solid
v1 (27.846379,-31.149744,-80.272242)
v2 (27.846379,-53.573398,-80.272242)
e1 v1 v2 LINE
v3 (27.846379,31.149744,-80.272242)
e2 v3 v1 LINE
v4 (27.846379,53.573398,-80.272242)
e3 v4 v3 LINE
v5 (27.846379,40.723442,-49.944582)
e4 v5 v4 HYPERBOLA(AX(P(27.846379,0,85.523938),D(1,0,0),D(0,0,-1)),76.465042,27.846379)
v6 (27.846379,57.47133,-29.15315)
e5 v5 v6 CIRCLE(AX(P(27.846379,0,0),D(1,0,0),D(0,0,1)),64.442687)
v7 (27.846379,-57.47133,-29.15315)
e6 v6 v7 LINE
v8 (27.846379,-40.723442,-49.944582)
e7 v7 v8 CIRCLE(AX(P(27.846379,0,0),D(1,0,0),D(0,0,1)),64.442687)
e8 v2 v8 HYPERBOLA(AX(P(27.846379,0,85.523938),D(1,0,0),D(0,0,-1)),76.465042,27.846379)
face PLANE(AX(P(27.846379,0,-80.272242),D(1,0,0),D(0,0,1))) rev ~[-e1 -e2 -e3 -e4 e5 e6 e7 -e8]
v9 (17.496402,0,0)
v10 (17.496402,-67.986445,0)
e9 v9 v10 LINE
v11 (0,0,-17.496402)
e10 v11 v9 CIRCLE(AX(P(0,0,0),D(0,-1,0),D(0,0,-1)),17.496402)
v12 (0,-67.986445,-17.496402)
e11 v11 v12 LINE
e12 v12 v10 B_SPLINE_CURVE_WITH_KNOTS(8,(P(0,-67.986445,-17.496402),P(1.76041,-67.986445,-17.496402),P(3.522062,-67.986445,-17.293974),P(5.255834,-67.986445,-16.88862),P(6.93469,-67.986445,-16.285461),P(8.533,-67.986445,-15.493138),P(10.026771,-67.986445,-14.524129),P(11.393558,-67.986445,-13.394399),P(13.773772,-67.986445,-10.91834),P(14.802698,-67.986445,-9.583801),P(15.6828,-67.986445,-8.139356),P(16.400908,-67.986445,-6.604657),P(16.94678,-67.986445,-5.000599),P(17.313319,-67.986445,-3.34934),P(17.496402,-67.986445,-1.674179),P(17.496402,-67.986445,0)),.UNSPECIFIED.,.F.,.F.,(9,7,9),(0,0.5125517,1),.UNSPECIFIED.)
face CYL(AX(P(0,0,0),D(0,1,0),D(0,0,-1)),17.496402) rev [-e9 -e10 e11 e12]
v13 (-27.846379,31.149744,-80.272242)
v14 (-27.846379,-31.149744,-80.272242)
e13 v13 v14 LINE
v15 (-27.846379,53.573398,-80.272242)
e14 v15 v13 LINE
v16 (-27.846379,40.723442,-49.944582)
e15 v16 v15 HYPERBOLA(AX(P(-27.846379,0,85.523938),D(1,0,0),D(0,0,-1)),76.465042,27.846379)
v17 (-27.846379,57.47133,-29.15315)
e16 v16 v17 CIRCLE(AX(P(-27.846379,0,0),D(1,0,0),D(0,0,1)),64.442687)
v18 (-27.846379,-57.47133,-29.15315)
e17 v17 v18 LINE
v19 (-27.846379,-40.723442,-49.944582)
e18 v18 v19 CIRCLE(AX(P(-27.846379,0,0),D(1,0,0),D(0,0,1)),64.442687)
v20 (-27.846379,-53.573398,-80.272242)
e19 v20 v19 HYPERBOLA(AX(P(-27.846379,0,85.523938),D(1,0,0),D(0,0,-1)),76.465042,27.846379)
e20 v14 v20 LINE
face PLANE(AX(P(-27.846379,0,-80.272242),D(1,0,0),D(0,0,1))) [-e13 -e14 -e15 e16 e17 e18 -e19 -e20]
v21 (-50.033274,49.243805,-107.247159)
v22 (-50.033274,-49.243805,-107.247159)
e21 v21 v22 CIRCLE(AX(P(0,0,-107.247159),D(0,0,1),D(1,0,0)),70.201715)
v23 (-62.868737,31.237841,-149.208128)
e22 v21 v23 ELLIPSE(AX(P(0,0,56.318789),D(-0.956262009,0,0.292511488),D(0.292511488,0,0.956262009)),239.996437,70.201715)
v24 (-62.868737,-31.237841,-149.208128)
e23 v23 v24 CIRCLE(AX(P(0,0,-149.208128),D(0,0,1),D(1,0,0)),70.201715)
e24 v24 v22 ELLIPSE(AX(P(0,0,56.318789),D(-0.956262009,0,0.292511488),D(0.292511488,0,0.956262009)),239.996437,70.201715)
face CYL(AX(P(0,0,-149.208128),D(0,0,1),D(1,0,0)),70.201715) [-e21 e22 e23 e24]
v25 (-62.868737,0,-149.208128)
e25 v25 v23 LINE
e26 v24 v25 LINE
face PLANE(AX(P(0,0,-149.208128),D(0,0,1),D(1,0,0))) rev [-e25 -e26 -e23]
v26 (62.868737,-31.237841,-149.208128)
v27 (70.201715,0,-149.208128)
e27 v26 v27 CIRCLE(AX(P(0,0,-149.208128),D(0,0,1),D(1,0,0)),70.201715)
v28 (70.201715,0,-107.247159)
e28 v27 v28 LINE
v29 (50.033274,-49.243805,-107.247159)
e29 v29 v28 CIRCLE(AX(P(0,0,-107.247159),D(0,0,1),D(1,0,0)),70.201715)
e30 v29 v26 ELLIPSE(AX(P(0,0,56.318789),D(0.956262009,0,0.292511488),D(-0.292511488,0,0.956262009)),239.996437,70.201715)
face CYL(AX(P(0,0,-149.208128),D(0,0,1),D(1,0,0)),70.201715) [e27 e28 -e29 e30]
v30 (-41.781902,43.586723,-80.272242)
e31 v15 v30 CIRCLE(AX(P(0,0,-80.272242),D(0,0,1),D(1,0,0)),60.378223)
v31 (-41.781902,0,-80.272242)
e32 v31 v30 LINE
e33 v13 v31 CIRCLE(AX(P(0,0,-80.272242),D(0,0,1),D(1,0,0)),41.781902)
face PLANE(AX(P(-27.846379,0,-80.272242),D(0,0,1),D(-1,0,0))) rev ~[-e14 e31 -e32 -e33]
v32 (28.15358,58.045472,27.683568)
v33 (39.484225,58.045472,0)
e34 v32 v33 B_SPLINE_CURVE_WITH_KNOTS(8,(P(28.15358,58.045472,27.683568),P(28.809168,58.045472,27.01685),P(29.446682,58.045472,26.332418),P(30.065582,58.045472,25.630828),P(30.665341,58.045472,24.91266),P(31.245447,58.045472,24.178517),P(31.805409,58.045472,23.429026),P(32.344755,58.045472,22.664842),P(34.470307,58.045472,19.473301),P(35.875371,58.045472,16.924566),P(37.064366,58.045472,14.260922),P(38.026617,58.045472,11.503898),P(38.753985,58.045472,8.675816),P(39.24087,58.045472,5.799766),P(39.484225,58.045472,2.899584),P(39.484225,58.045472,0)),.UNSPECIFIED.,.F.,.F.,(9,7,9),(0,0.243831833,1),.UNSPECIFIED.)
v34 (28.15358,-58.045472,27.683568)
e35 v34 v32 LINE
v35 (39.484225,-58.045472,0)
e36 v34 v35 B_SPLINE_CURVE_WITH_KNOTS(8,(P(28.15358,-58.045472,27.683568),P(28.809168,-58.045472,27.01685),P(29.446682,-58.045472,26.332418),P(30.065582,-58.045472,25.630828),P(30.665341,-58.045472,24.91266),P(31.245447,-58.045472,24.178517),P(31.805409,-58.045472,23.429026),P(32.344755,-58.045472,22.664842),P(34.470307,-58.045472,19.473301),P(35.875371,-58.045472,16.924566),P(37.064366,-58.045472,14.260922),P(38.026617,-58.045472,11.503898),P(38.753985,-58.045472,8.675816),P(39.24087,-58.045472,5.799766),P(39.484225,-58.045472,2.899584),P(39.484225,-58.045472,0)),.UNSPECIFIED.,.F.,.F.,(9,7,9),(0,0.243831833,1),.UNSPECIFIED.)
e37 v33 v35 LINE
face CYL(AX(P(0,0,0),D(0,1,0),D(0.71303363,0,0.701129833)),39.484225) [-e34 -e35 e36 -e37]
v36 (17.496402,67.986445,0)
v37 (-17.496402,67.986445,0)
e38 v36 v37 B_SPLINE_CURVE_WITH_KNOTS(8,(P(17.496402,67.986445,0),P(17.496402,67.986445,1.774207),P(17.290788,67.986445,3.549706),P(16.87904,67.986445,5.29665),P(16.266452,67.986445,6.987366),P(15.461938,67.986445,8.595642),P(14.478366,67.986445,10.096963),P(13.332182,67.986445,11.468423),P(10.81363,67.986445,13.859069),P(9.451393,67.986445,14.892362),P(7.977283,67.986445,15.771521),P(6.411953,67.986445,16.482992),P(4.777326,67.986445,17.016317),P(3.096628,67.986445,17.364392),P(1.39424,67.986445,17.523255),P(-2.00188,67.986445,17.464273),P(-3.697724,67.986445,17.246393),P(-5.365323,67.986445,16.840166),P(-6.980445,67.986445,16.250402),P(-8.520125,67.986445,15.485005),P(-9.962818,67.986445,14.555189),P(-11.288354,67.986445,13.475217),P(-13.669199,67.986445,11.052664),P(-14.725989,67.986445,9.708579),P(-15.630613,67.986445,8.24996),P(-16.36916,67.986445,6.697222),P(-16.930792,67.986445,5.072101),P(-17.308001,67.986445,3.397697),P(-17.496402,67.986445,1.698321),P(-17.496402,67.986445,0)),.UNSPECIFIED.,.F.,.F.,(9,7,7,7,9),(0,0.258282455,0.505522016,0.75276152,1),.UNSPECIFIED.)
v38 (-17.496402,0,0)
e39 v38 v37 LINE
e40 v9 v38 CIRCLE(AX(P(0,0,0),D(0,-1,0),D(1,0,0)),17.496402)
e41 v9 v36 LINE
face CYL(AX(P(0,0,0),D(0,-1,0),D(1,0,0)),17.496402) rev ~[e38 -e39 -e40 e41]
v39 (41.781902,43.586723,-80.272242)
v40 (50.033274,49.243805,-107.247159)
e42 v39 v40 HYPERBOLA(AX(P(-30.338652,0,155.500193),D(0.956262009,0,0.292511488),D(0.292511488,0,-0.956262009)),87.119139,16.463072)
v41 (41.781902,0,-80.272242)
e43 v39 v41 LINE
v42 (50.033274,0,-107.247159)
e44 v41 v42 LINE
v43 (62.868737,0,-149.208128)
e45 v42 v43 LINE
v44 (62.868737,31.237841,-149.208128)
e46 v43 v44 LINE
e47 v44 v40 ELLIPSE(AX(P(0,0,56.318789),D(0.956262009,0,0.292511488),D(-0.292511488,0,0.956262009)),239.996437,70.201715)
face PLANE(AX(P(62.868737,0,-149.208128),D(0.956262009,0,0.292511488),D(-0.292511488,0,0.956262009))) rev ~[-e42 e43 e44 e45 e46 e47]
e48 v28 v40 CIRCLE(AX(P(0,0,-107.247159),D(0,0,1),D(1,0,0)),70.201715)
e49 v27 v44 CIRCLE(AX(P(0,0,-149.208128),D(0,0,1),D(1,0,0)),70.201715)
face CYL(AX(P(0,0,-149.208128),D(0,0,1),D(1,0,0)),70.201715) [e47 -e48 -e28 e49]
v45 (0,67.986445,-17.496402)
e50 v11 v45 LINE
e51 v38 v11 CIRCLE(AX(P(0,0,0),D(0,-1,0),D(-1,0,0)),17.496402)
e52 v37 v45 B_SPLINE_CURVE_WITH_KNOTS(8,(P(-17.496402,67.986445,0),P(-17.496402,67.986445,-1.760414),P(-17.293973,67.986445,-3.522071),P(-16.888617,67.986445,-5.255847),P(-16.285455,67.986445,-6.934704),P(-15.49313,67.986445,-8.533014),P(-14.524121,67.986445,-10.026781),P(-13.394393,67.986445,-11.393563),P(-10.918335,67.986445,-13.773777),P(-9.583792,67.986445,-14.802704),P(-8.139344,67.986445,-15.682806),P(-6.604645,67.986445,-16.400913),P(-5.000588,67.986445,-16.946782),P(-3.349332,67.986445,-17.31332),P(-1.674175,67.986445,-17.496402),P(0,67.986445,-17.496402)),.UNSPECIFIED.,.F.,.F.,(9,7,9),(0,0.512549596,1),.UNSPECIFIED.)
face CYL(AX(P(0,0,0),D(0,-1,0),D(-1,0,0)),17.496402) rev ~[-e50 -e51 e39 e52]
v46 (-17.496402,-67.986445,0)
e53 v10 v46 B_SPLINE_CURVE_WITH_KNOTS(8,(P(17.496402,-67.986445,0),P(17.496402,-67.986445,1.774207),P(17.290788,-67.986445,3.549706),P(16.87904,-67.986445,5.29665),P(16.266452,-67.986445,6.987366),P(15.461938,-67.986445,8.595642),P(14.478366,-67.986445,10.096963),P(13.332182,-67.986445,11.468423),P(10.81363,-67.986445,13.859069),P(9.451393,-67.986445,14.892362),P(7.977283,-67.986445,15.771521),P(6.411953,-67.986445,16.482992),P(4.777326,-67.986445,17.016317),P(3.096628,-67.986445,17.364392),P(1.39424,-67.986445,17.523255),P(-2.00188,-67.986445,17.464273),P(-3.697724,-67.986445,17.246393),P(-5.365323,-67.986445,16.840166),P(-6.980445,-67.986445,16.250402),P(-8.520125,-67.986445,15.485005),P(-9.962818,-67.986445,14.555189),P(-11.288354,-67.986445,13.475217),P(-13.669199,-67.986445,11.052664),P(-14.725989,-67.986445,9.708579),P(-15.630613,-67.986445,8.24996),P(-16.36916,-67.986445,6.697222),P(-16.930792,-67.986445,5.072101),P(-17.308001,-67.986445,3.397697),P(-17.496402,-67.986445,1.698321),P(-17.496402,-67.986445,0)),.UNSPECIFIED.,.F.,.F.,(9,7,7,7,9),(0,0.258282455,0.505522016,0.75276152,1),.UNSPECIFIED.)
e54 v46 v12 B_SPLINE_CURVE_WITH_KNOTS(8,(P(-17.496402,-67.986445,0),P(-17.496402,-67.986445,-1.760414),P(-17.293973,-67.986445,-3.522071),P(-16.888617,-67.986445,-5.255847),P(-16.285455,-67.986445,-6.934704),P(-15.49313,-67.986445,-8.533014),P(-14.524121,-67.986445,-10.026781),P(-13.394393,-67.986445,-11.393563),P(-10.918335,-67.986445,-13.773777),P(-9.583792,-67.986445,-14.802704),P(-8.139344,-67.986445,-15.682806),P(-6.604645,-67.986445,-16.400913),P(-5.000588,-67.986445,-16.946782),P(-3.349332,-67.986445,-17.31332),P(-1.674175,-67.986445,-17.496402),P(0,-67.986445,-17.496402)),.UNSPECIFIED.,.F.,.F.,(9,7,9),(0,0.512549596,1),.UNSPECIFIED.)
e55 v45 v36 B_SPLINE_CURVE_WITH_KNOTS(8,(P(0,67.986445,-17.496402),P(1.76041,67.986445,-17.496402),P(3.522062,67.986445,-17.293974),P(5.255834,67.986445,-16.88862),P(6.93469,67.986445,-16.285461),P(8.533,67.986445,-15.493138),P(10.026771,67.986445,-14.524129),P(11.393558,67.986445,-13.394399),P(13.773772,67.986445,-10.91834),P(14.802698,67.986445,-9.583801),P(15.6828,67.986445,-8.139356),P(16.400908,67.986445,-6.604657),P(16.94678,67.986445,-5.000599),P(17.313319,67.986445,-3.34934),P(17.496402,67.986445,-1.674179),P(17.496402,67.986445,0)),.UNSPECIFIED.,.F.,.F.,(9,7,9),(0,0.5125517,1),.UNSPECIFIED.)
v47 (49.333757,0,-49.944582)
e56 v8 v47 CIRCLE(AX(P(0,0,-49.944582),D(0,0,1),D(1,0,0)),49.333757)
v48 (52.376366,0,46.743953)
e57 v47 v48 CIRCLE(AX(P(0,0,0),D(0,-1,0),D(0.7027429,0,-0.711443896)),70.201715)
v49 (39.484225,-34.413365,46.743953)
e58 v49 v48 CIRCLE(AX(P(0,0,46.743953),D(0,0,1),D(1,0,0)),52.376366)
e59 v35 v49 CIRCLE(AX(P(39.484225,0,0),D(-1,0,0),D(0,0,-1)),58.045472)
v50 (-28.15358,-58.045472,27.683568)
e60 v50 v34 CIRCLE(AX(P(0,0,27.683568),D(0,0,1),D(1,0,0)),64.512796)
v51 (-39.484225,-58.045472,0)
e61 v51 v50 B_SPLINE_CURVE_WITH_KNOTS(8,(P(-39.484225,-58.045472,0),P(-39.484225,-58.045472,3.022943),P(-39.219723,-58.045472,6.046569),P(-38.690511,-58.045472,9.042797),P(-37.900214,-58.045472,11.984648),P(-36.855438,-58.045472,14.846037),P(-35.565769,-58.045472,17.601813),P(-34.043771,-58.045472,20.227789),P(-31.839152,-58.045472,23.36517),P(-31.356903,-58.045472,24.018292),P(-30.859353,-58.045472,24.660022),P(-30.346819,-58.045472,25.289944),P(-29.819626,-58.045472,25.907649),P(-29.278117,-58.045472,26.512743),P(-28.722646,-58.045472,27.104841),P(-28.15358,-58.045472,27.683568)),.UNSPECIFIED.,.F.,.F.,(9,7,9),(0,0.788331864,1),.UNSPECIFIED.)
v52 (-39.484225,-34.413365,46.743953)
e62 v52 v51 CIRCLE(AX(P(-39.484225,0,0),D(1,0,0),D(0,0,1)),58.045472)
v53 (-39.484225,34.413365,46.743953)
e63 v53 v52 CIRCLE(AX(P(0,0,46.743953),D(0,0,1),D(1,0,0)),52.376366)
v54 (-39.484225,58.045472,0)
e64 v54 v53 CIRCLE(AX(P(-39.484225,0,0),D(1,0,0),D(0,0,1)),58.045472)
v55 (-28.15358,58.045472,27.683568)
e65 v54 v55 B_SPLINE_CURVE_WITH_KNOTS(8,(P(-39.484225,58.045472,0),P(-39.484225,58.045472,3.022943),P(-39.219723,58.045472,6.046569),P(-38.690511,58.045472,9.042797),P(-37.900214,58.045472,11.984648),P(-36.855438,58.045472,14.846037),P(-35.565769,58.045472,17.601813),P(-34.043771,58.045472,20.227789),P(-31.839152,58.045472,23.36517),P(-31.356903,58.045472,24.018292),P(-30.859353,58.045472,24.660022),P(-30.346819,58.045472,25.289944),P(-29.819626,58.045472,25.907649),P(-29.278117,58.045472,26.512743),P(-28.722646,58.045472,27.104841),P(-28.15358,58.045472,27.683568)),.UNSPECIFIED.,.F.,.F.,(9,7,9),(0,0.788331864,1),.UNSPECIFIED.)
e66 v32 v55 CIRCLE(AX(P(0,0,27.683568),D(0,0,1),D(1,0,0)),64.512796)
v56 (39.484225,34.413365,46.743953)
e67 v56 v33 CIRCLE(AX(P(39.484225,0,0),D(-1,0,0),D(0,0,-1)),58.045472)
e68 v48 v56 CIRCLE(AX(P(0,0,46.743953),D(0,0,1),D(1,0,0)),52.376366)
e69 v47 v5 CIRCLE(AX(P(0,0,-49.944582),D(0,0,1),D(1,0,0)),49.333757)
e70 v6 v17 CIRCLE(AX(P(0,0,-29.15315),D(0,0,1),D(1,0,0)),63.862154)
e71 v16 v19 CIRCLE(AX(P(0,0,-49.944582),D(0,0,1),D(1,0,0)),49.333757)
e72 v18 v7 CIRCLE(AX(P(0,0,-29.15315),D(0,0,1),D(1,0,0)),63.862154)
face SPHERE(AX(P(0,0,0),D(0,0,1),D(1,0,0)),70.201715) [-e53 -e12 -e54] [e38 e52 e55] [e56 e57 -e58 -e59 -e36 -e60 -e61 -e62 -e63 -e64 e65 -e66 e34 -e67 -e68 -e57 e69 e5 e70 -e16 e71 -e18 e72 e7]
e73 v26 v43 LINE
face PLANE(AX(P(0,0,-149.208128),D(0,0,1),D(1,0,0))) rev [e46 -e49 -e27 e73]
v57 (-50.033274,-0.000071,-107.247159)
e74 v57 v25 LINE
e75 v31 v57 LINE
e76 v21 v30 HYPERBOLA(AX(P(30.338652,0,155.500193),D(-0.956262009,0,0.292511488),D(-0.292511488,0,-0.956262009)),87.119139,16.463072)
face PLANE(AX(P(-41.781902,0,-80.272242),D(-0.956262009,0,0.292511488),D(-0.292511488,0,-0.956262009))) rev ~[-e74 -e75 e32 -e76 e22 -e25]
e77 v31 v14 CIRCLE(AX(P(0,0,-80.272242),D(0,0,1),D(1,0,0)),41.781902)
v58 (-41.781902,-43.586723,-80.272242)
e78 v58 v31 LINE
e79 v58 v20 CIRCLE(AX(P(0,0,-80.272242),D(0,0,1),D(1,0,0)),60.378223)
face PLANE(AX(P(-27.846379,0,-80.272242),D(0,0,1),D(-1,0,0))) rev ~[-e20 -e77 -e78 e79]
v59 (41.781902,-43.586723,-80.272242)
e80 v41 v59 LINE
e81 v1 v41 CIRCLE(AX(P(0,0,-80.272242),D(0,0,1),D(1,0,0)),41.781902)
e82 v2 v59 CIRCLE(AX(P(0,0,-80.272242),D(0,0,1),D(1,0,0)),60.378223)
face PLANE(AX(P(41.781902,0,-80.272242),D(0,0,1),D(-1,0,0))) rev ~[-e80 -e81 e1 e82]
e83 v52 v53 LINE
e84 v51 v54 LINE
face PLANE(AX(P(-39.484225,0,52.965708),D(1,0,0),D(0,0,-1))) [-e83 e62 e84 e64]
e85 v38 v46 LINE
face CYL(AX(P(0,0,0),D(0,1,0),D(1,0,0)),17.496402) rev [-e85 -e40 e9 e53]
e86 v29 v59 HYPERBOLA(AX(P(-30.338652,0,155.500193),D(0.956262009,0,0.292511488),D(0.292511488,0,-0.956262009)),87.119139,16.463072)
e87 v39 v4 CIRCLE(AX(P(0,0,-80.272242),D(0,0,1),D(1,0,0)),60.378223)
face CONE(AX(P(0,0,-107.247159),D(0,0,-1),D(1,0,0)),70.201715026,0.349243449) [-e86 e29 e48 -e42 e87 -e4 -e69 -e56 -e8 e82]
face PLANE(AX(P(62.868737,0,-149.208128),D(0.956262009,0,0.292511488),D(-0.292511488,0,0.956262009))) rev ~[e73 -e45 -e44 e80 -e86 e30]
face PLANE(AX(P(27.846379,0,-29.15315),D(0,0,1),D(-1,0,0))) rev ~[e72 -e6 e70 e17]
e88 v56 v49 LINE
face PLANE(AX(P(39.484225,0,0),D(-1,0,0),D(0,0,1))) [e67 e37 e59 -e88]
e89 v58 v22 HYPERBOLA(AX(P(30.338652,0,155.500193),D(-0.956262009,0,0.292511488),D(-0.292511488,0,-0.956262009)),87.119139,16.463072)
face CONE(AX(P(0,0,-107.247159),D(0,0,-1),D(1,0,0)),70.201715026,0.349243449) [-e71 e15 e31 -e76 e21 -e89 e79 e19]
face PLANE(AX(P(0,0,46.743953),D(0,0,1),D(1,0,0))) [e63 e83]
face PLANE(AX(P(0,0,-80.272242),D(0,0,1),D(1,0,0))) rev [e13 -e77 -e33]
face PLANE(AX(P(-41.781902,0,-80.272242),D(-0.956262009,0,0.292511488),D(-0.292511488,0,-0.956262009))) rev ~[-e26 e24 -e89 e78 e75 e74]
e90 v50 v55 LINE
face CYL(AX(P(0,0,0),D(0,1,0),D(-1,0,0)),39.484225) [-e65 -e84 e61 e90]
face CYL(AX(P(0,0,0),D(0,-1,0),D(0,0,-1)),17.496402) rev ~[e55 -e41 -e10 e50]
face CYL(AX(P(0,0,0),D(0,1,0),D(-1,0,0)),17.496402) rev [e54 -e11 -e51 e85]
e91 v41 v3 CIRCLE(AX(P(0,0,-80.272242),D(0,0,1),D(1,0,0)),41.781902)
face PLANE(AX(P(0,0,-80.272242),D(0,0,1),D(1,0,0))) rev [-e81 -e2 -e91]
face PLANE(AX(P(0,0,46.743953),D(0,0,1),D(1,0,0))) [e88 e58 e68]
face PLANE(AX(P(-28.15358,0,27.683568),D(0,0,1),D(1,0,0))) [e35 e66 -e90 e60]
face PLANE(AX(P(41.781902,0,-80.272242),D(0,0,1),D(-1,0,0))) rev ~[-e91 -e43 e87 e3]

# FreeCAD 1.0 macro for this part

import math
import FreeCAD as App
import Part
import Sketcher

V = App.Vector
Q = App.Units.Quantity


def add_polygon(sketch, points):
    """Adds a closed chain of lines whose ends are joined by coincident constraints."""
    first, n = sketch.GeometryCount, len(points)
    for a, b in zip(points, points[1:] + points[:1]):
        sketch.addGeometry(Part.LineSegment(App.Vector(*a, 0), App.Vector(*b, 0)), False)
    for i in range(n):
        sketch.addConstraint(Sketcher.Constraint("Coincident", first + i, 2, first + (i + 1) % n, 1))

doc = App.newDocument("Part")
body = doc.addObject("PartDesign::Body", "Body")

sketch1 = doc.addObject("Sketcher::SketchObject", "Sketch")
body.addObject(sketch1)
sketch1.AttachmentSupport = (doc.XZ_Plane, [""])
sketch1.MapMode = "FlatFace"
sketch1.addGeometry([
    Part.ArcOfCircle(Part.Circle(V(0, 0, 0), V(0, 0, 1), 70.201715), math.radians(-45.352516), math.radians(41.747722)),
    Part.LineSegment(V(52.376366, 46.743953, 0), V(0, 46.743953, 0)),
    Part.LineSegment(V(0, 46.743953, 0), V(0, -80.272242, 0)),
    Part.LineSegment(V(0, -80.272242, 0), V(41.781902, -80.272242, 0)),
    Part.LineSegment(V(41.781902, -80.272242, 0), V(50.033274, -107.247159, 0)),
    Part.LineSegment(V(50.033274, -107.247159, 0), V(62.868737, -149.208128, 0)),
    Part.LineSegment(V(62.868737, -149.208128, 0), V(70.201715, -149.208128, 0)),
    Part.LineSegment(V(70.201715, -149.208128, 0), V(70.201715, -107.247159, 0)),
    Part.LineSegment(V(70.201715, -107.247159, 0), V(49.333757, -49.944582, 0)),
], False)
sketch1.addConstraint([
    Sketcher.Constraint("Coincident", 0, 2, 1, 1),
    Sketcher.Constraint("Coincident", 1, 2, 2, 1),
    Sketcher.Constraint("Coincident", 2, 2, 3, 1),
    Sketcher.Constraint("Coincident", 3, 2, 4, 1),
    Sketcher.Constraint("Coincident", 4, 2, 5, 1),
    Sketcher.Constraint("Coincident", 5, 2, 6, 1),
    Sketcher.Constraint("Coincident", 6, 2, 7, 1),
    Sketcher.Constraint("Coincident", 7, 2, 8, 1),
    Sketcher.Constraint("Coincident", 8, 2, 0, 1),
    Sketcher.Constraint("Horizontal", 1),
    Sketcher.Constraint("Vertical", 2),
    Sketcher.Constraint("Horizontal", 3),
    Sketcher.Constraint("Horizontal", 6),
    Sketcher.Constraint("Vertical", 7),
    Sketcher.Constraint("Coincident", 0, 3, -1, 1),
    Sketcher.Constraint("PointOnObject", 1, 2, -2),
    Sketcher.Constraint("Parallel", 4, 5),
    Sketcher.Constraint("Horizontal", 4, 2, 7, 2),
    Sketcher.Constraint("Radius", 0, Q("70.201715 mm")),
    Sketcher.Constraint("Distance", 5, Q("43.880201 mm")),
    Sketcher.Constraint("DistanceX", 6, 1, 6, 2, Q("7.332978 mm")),
    Sketcher.Constraint("DistanceY", 7, 1, 7, 2, Q("41.96097 mm")),
    Sketcher.Constraint("Distance", 4, Q("28.208709 mm")),
    Sketcher.Constraint("DistanceX", 1, 2, 1, 1, Q("52.376366 mm")),
    Sketcher.Constraint("DistanceX", 3, 1, 3, 2, Q("41.781902 mm")),
    Sketcher.Constraint("DistanceY", 2, 2, 2, 1, Q("127.016195 mm")),
    Sketcher.Constraint("DistanceY", 8, 2, -1, 1, Q("49.944582 mm")),
])
revolution = doc.addObject("PartDesign::Revolution", "Revolution")
body.addObject(revolution)
revolution.Profile = sketch1
revolution.ReferenceAxis = (sketch1, ["V_Axis"])
revolution.Angle = 360

sketch2 = doc.addObject("Sketcher::SketchObject", "Sketch001")
body.addObject(sketch2)
sketch2.AttachmentSupport = (doc.XZ_Plane, [""])
sketch2.MapMode = "FlatFace"
sketch2.addGeometry(Part.ArcOfCircle(Part.Circle(V(0, 0, 0), V(0, 0, 1), 39.484225), math.radians(0), math.radians(44.517721)), False)
sketch2.addGeometry(Part.LineSegment(V(39.484225, 0, 0), V(39.484225, 52.965708, 0)), False)
sketch2.addGeometry(Part.LineSegment(V(39.484225, 52.965708, 0), V(-39.484225, 52.965708, 0)), False)
sketch2.addGeometry(Part.LineSegment(V(-39.484225, 52.965708, 0), V(-39.484225, 0, 0)), False)
sketch2.addGeometry(Part.ArcOfCircle(Part.Circle(V(0, 0, 0), V(0, 0, 1), 39.484225), math.radians(135.482279), math.radians(180)), False)
sketch2.addGeometry(Part.LineSegment(V(-28.15358, 27.683568, 0), V(28.15358, 27.683568, 0)), False)
sketch2.addGeometry(Part.ArcOfCircle(Part.Circle(V(0, 0, 0), V(0, 0, 1), 17.496402), math.radians(0), math.radians(180)), False)
sketch2.addGeometry(Part.ArcOfCircle(Part.Circle(V(0, 0, 0), V(0, 0, 1), 17.496402), math.radians(180), math.radians(270)), False)
sketch2.addGeometry(Part.ArcOfCircle(Part.Circle(V(0, 0, 0), V(0, 0, 1), 17.496402), math.radians(-90), math.radians(0)), False)
add_polygon(sketch2, [(62.868737, -149.208128), (41.781902, -80.272242), (27.846379, -80.272242), (27.846379, -29.15315), (-27.846379, -29.15315), (-27.846379, -80.272242), (-41.781902, -80.272242), (-62.868737, -149.208128)])
sketch2.addConstraint([
    Sketcher.Constraint("Tangent", 0, 1, 1, 1),
    Sketcher.Constraint("Coincident", 1, 2, 2, 1),
    Sketcher.Constraint("Coincident", 2, 2, 3, 1),
    Sketcher.Constraint("Tangent", 3, 2, 4, 2),
    Sketcher.Constraint("Coincident", 4, 1, 5, 1),
    Sketcher.Constraint("Coincident", 5, 2, 0, 2),
    Sketcher.Constraint("Tangent", 6, 2, 7, 1),
    Sketcher.Constraint("Tangent", 7, 2, 8, 1),
    Sketcher.Constraint("Tangent", 8, 2, 6, 1),
    Sketcher.Constraint("Vertical", 1),
    Sketcher.Constraint("Horizontal", 2),
    Sketcher.Constraint("Vertical", 3),
    Sketcher.Constraint("Horizontal", 5),
    Sketcher.Constraint("Horizontal", 10),
    Sketcher.Constraint("Vertical", 11),
    Sketcher.Constraint("Horizontal", 12),
    Sketcher.Constraint("Vertical", 13),
    Sketcher.Constraint("Horizontal", 14),
    Sketcher.Constraint("Horizontal", 16),
    Sketcher.Constraint("Coincident", 0, 3, -1, 1),
    Sketcher.Constraint("Coincident", 4, 3, -1, 1),
    Sketcher.Constraint("Coincident", 6, 3, -1, 1),
    Sketcher.Constraint("Equal", 0, 4),
    Sketcher.Constraint("Symmetric", 10, 2, 13, 2, -2),
    Sketcher.Constraint("PointOnObject", 6, 2, -1),
    Sketcher.Constraint("PointOnObject", 7, 2, -2),
    Sketcher.Constraint("PointOnObject", 8, 2, -1),
    Sketcher.Constraint("Equal", 10, 14),
    Sketcher.Constraint("Equal", 9, 15),
    Sketcher.Constraint("Radius", 0, Q("39.484225 mm")),
    Sketcher.Constraint("Radius", 6, Q("17.496402 mm")),
    Sketcher.Constraint("DistanceX", 5, 1, 5, 2, Q("56.30716 mm")),
    Sketcher.Constraint("DistanceX", 12, 2, 12, 1, Q("55.692758 mm")),
    Sketcher.Constraint("DistanceY", 1, 1, 1, 2, Q("52.965708 mm")),
    Sketcher.Constraint("DistanceX", 8, 2, 9, 2, Q("24.2855 mm")),
    Sketcher.Constraint("Distance", 9, Q("72.08891 mm")),
    Sketcher.Constraint("DistanceX", 16, 1, 16, 2, Q("125.737473 mm")),
    Sketcher.Constraint("DistanceY", 11, 1, 11, 2, Q("51.119093 mm")),
    Sketcher.Constraint("DistanceY", 11, 2, -1, 1, Q("29.15315 mm")),
])
pocket1 = doc.addObject("PartDesign::Pocket", "Pocket")
body.addObject(pocket1)
pocket1.Profile = sketch2
pocket1.Length = 295.939595
pocket1.Midplane = True

doc.recompute()
